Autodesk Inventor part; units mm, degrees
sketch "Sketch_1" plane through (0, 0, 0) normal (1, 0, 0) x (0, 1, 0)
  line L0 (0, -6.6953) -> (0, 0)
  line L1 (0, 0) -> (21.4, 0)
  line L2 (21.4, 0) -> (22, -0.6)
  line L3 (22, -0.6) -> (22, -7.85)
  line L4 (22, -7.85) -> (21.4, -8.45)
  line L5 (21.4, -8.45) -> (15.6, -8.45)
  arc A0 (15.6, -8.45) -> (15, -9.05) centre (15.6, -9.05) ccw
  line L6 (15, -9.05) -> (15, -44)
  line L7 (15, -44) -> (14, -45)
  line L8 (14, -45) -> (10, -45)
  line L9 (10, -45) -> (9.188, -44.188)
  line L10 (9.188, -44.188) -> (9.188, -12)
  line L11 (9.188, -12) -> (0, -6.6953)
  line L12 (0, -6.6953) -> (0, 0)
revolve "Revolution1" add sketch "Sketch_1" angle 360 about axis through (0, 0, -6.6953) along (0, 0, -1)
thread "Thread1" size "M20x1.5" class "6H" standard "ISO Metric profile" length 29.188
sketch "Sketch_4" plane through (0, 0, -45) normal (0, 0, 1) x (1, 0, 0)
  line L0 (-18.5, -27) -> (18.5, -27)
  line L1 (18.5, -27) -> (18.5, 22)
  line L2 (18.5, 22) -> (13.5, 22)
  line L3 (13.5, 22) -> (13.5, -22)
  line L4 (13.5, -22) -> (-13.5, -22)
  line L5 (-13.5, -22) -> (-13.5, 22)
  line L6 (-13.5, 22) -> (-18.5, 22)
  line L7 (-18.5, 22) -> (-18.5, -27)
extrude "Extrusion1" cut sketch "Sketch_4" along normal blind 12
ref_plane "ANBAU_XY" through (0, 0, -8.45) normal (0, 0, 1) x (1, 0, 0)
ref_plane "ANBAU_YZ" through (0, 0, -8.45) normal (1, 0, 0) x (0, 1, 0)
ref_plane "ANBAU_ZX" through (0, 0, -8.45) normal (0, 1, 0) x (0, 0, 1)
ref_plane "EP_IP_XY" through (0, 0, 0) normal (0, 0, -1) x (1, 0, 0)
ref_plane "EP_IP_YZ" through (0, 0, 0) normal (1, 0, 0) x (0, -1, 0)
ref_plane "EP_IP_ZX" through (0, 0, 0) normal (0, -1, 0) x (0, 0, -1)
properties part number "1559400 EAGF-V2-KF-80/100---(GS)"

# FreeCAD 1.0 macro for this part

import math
import FreeCAD as App
import Part
import Sketcher
Q = App.Units.Quantity

doc = App.newDocument("Part")
body = doc.addObject("PartDesign::Body", "Body")

sketch1 = body.newObject("Sketcher::SketchObject", "Sketch")
sketch1.AttachmentSupport = (doc.getObject("YZ_Plane"), [""])
sketch1.MapMode = "FlatFace"
sketch1.addGeometry([
    Part.LineSegment(App.Vector(0, 0, 0), App.Vector(0, -6.6953, 0)),
    Part.LineSegment(App.Vector(0, -6.6953, 0), App.Vector(9.188, -12, 0)),
    Part.LineSegment(App.Vector(9.188, -12, 0), App.Vector(9.188, -44.188, 0)),
    Part.LineSegment(App.Vector(9.188, -44.188, 0), App.Vector(10, -45, 0)),
    Part.LineSegment(App.Vector(10, -45, 0), App.Vector(14, -45, 0)),
    Part.LineSegment(App.Vector(14, -45, 0), App.Vector(15, -44, 0)),
    Part.LineSegment(App.Vector(15, -44, 0), App.Vector(15, -9.05, 0)),
    Part.ArcOfCircle(Part.Circle(App.Vector(15.6, -9.05, 0), App.Vector(0, 0, 1), 0.6), math.radians(90), math.radians(180)),
    Part.LineSegment(App.Vector(15.6, -8.45, 0), App.Vector(21.4, -8.45, 0)),
    Part.LineSegment(App.Vector(21.4, -8.45, 0), App.Vector(22, -7.85, 0)),
    Part.LineSegment(App.Vector(22, -7.85, 0), App.Vector(22, -0.6, 0)),
    Part.LineSegment(App.Vector(22, -0.6, 0), App.Vector(21.4, 0, 0)),
    Part.LineSegment(App.Vector(21.4, 0, 0), App.Vector(0, 0, 0)),
], False)
sketch1.addConstraint([
    Sketcher.Constraint("Coincident", 0, 2, 1, 1),
    Sketcher.Constraint("Coincident", 1, 2, 2, 1),
    Sketcher.Constraint("Coincident", 2, 2, 3, 1),
    Sketcher.Constraint("Coincident", 3, 2, 4, 1),
    Sketcher.Constraint("Coincident", 4, 2, 5, 1),
    Sketcher.Constraint("Coincident", 5, 2, 6, 1),
    Sketcher.Constraint("Tangent", 6, 2, 7, 2),
    Sketcher.Constraint("Tangent", 7, 1, 8, 1),
    Sketcher.Constraint("Coincident", 8, 2, 9, 1),
    Sketcher.Constraint("Coincident", 9, 2, 10, 1),
    Sketcher.Constraint("Coincident", 10, 2, 11, 1),
    Sketcher.Constraint("Coincident", 11, 2, 12, 1),
    Sketcher.Constraint("Coincident", 12, 2, 0, 1),
    Sketcher.Constraint("Vertical", 0),
    Sketcher.Constraint("Vertical", 2),
    Sketcher.Constraint("Horizontal", 4),
    Sketcher.Constraint("Vertical", 6),
    Sketcher.Constraint("Horizontal", 8),
    Sketcher.Constraint("Vertical", 10),
    Sketcher.Constraint("Horizontal", 12),
    Sketcher.Constraint("Coincident", 12, 2, -1, 1),
    Sketcher.Constraint("Perpendicular", 3, 5),
    Sketcher.Constraint("Parallel", 5, 9),
    Sketcher.Constraint("Perpendicular", 9, 11),
    Sketcher.Constraint("Vertical", 8, 2, 11, 2),
    Sketcher.Constraint("Equal", 9, 11),
    Sketcher.Constraint("Radius", 7, 0.6),
    Sketcher.Constraint("DistanceX", 4, 1, 4, 2, 4.0),
    Sketcher.Constraint("Angle", 1, Q("-30 deg")),
    Sketcher.Constraint("DistanceX", 8, 1, 8, 2, 5.8),
    Sketcher.Constraint("DistanceX", 12, 2, 12, 1, 21.4),
    Sketcher.Constraint("DistanceY", 1, 2, -1, 1, 12.0),
    Sketcher.Constraint("DistanceX", -1, 1, 3, 2, 10.0),
    Sketcher.Constraint("DistanceY", 3, 2, -1, 1, 45.0),
    Sketcher.Constraint("DistanceX", -1, 1, 9, 2, 22.0),
    Sketcher.Constraint("DistanceY", 6, 1, 6, 2, 34.95),
    Sketcher.Constraint("DistanceY", 2, 2, 2, 1, 32.188),
])
revolution = body.newObject("PartDesign::Revolution", "Revolution")
revolution.Profile = sketch1
revolution.ReferenceAxis = (sketch1, ["V_Axis"])
revolution.Angle = 360

sketch2 = body.newObject("Sketcher::SketchObject", "Sketch001")
sketch2.AttachmentSupport = (doc.getObject("XY_Plane"), [""])
sketch2.MapMode = "FlatFace"
sketch2.AttachmentOffset = App.Placement(App.Vector(0, 0, -45), App.Rotation())
sketch2.addGeometry([
    Part.LineSegment(App.Vector(-18.5, 22, 0), App.Vector(-18.5, -27, 0)),
    Part.LineSegment(App.Vector(-18.5, -27, 0), App.Vector(18.5, -27, 0)),
    Part.LineSegment(App.Vector(18.5, -27, 0), App.Vector(18.5, 22, 0)),
    Part.LineSegment(App.Vector(18.5, 22, 0), App.Vector(13.5, 22, 0)),
    Part.LineSegment(App.Vector(13.5, 22, 0), App.Vector(13.5, -22, 0)),
    Part.LineSegment(App.Vector(13.5, -22, 0), App.Vector(-13.5, -22, 0)),
    Part.LineSegment(App.Vector(-13.5, -22, 0), App.Vector(-13.5, 22, 0)),
    Part.LineSegment(App.Vector(-13.5, 22, 0), App.Vector(-18.5, 22, 0)),
], False)
sketch2.addConstraint([
    Sketcher.Constraint("Coincident", 0, 2, 1, 1),
    Sketcher.Constraint("Coincident", 1, 2, 2, 1),
    Sketcher.Constraint("Coincident", 2, 2, 3, 1),
    Sketcher.Constraint("Coincident", 3, 2, 4, 1),
    Sketcher.Constraint("Coincident", 4, 2, 5, 1),
    Sketcher.Constraint("Coincident", 5, 2, 6, 1),
    Sketcher.Constraint("Coincident", 6, 2, 7, 1),
    Sketcher.Constraint("Coincident", 7, 2, 0, 1),
    Sketcher.Constraint("Vertical", 0),
    Sketcher.Constraint("Horizontal", 1),
    Sketcher.Constraint("Vertical", 2),
    Sketcher.Constraint("Horizontal", 3),
    Sketcher.Constraint("Vertical", 4),
    Sketcher.Constraint("Horizontal", 5),
    Sketcher.Constraint("Vertical", 6),
    Sketcher.Constraint("Horizontal", 7),
    Sketcher.Constraint("Symmetric", 3, 2, 5, 2, -1, 1),
    Sketcher.Constraint("Symmetric", 2, 2, 7, 2, -2),
    Sketcher.Constraint("DistanceX", 1, 1, 1, 2, 37.0),
    Sketcher.Constraint("DistanceX", 3, 2, 3, 1, 5.0),
    Sketcher.Constraint("DistanceY", 0, 2, 0, 1, 49.0),
    Sketcher.Constraint("DistanceY", 4, 2, 4, 1, 44.0),
])
pocket1 = body.newObject("PartDesign::Pocket", "Pocket")
pocket1.Profile = sketch2
pocket1.Length = 12
pocket1.Reversed = True

doc.recompute()
